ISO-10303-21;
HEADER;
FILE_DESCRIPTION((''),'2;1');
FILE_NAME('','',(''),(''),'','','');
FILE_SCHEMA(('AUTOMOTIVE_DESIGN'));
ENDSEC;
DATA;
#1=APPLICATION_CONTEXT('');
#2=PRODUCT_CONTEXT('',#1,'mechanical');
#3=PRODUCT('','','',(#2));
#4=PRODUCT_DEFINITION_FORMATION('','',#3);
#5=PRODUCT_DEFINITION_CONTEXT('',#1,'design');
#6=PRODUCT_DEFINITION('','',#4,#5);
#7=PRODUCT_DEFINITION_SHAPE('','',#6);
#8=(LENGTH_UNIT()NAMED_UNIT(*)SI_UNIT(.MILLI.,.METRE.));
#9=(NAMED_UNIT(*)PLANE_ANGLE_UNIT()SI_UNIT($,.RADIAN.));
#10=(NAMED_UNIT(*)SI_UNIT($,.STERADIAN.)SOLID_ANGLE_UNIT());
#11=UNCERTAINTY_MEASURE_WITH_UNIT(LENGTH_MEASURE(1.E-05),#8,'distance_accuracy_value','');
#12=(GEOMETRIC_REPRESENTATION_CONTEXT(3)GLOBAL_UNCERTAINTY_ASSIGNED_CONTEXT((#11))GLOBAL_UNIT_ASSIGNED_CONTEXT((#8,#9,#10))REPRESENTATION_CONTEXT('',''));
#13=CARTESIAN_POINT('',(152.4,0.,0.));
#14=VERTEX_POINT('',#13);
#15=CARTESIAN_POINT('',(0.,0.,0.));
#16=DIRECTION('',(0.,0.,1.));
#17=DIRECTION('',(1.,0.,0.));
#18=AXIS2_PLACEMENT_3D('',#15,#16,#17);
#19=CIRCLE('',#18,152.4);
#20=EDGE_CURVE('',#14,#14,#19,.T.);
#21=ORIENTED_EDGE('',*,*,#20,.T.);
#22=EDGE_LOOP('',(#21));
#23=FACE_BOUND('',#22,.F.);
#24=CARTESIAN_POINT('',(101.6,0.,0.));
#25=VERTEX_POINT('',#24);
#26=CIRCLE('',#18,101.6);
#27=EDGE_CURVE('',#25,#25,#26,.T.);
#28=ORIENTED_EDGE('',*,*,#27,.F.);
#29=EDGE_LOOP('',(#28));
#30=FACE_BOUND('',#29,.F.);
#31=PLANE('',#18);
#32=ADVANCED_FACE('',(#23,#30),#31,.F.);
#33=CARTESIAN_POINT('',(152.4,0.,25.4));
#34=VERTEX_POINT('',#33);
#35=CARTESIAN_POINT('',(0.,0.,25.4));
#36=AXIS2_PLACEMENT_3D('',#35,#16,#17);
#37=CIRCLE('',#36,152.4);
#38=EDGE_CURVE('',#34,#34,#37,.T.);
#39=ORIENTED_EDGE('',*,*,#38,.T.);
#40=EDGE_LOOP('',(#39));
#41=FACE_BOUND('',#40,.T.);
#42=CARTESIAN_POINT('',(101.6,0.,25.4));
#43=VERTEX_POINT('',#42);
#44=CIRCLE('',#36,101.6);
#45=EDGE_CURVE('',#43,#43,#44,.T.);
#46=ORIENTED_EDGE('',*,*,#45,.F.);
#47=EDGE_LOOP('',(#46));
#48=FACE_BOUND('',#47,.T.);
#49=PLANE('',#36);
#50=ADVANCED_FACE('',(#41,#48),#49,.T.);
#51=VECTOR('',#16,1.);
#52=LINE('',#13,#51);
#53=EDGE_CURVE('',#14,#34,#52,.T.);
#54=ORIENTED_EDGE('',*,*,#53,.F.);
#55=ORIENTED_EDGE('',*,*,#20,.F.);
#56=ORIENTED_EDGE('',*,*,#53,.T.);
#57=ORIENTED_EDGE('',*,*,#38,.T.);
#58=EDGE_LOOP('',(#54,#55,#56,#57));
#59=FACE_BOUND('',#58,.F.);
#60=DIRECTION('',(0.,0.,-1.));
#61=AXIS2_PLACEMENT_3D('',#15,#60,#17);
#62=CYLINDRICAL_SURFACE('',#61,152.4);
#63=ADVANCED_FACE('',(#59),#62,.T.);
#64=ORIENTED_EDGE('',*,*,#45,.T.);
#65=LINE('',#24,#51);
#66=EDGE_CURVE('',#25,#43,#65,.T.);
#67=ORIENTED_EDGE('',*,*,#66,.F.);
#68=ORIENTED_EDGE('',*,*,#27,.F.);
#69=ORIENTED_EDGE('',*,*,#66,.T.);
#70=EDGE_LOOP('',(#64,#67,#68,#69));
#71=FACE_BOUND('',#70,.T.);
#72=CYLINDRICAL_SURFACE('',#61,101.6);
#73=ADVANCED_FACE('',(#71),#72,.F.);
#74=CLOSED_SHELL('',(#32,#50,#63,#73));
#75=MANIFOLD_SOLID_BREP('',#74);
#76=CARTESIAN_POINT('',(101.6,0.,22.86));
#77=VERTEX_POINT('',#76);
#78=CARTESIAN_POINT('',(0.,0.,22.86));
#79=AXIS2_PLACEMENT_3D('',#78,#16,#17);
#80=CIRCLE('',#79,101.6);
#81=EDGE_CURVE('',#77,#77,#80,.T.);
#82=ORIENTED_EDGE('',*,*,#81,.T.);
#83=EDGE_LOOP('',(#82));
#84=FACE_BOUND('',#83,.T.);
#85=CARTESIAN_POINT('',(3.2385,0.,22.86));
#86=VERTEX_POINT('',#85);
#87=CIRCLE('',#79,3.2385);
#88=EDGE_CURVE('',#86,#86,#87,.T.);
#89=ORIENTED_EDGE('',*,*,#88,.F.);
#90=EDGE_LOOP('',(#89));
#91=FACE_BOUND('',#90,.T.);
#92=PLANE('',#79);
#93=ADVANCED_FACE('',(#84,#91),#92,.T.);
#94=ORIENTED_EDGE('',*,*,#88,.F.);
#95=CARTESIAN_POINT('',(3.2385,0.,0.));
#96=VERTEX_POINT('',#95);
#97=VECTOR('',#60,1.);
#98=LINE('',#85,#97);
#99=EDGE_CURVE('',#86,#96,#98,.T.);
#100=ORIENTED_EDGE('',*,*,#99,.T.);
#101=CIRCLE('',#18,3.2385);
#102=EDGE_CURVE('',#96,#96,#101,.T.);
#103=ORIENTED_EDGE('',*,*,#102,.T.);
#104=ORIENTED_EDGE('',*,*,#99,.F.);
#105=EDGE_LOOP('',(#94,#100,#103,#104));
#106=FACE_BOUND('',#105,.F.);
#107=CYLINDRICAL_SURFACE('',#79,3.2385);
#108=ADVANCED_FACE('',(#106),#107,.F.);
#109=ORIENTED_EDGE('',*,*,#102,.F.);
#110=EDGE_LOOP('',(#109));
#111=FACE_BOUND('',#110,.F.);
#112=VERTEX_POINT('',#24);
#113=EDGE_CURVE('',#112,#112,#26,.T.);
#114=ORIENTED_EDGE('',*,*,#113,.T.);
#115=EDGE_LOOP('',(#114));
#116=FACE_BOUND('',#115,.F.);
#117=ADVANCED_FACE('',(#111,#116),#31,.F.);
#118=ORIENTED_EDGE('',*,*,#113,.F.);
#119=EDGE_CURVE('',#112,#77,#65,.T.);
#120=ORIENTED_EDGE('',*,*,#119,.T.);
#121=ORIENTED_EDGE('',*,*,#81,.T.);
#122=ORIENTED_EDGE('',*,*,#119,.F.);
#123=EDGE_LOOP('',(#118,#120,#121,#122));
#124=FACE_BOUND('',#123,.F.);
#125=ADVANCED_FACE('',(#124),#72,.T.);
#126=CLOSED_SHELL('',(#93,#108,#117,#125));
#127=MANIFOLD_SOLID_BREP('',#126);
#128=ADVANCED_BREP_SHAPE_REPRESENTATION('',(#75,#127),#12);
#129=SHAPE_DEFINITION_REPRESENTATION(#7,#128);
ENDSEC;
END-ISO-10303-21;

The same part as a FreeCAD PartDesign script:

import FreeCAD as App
import Part
import Sketcher

V = App.Vector
Q = App.Units.Quantity

doc = App.newDocument("Part")
body = doc.addObject("PartDesign::Body", "Body")

# Sketch on XY plane
sketch1 = doc.addObject("Sketcher::SketchObject", "Sketch")
body.addObject(sketch1)
sketch1.AttachmentSupport = (doc.XY_Plane, [""])
sketch1.MapMode = "FlatFace"
sketch1.addGeometry(Part.Circle(V(0, 0, 0), V(0, 0, 1), 102), False)
sketch1.addConstraint([
    Sketcher.Constraint("Coincident", 0, 3, -1, 1),
    Sketcher.Constraint("Diameter", 0, Q("8 in")),
])
pad1 = doc.addObject("PartDesign::Pad", "Pad")
body.addObject(pad1)
pad1.Profile = sketch1
pad1.Length = Q("0.9 in")

# Sketch on XY plane
sketch2 = doc.addObject("Sketcher::SketchObject", "Sketch001")
body.addObject(sketch2)
sketch2.AttachmentSupport = (doc.XY_Plane, [""])
sketch2.MapMode = "FlatFace"
sketch2.AttachmentOffset = App.Placement(V(0, 0, 0.9 * 25.4), App.Rotation())
sketch2.addGeometry(Part.Circle(V(0, 0, 0), V(0, 0, 1), 3.2), False)
sketch2.addConstraint([
    Sketcher.Constraint("Coincident", 0, 3, -1, 1),
    Sketcher.Constraint("Diameter", 0, Q("0.255 in")),
])
pocket1 = doc.addObject("PartDesign::Pocket", "Pocket")
body.addObject(pocket1)
pocket1.Profile = sketch2
pocket1.Type = "ThroughAll"
body2 = doc.addObject("PartDesign::Body", "Body001")

# Sketch on XY plane
sketch3 = doc.addObject("Sketcher::SketchObject", "Sketch002")
body2.addObject(sketch3)
sketch3.AttachmentSupport = (doc.getObject("XY_Plane001"), [""])
sketch3.MapMode = "FlatFace"
sketch3.addGeometry([
    Part.Circle(V(0, 0, 0), V(0, 0, 1), 152),
    Part.Circle(V(0, 0, 0), V(0, 0, 1), 102),
], False)
sketch3.addConstraint([
    Sketcher.Constraint("Coincident", 0, 3, -1, 1),
    Sketcher.Constraint("Coincident", 1, 3, -1, 1),
    Sketcher.Constraint("Diameter", 0, Q("12 in")),
    Sketcher.Constraint("Diameter", 1, Q("8 in")),
])
pad2 = doc.addObject("PartDesign::Pad", "Pad001")
body2.addObject(pad2)
pad2.Profile = sketch3
pad2.Length = Q("1 in")

doc.recompute()
